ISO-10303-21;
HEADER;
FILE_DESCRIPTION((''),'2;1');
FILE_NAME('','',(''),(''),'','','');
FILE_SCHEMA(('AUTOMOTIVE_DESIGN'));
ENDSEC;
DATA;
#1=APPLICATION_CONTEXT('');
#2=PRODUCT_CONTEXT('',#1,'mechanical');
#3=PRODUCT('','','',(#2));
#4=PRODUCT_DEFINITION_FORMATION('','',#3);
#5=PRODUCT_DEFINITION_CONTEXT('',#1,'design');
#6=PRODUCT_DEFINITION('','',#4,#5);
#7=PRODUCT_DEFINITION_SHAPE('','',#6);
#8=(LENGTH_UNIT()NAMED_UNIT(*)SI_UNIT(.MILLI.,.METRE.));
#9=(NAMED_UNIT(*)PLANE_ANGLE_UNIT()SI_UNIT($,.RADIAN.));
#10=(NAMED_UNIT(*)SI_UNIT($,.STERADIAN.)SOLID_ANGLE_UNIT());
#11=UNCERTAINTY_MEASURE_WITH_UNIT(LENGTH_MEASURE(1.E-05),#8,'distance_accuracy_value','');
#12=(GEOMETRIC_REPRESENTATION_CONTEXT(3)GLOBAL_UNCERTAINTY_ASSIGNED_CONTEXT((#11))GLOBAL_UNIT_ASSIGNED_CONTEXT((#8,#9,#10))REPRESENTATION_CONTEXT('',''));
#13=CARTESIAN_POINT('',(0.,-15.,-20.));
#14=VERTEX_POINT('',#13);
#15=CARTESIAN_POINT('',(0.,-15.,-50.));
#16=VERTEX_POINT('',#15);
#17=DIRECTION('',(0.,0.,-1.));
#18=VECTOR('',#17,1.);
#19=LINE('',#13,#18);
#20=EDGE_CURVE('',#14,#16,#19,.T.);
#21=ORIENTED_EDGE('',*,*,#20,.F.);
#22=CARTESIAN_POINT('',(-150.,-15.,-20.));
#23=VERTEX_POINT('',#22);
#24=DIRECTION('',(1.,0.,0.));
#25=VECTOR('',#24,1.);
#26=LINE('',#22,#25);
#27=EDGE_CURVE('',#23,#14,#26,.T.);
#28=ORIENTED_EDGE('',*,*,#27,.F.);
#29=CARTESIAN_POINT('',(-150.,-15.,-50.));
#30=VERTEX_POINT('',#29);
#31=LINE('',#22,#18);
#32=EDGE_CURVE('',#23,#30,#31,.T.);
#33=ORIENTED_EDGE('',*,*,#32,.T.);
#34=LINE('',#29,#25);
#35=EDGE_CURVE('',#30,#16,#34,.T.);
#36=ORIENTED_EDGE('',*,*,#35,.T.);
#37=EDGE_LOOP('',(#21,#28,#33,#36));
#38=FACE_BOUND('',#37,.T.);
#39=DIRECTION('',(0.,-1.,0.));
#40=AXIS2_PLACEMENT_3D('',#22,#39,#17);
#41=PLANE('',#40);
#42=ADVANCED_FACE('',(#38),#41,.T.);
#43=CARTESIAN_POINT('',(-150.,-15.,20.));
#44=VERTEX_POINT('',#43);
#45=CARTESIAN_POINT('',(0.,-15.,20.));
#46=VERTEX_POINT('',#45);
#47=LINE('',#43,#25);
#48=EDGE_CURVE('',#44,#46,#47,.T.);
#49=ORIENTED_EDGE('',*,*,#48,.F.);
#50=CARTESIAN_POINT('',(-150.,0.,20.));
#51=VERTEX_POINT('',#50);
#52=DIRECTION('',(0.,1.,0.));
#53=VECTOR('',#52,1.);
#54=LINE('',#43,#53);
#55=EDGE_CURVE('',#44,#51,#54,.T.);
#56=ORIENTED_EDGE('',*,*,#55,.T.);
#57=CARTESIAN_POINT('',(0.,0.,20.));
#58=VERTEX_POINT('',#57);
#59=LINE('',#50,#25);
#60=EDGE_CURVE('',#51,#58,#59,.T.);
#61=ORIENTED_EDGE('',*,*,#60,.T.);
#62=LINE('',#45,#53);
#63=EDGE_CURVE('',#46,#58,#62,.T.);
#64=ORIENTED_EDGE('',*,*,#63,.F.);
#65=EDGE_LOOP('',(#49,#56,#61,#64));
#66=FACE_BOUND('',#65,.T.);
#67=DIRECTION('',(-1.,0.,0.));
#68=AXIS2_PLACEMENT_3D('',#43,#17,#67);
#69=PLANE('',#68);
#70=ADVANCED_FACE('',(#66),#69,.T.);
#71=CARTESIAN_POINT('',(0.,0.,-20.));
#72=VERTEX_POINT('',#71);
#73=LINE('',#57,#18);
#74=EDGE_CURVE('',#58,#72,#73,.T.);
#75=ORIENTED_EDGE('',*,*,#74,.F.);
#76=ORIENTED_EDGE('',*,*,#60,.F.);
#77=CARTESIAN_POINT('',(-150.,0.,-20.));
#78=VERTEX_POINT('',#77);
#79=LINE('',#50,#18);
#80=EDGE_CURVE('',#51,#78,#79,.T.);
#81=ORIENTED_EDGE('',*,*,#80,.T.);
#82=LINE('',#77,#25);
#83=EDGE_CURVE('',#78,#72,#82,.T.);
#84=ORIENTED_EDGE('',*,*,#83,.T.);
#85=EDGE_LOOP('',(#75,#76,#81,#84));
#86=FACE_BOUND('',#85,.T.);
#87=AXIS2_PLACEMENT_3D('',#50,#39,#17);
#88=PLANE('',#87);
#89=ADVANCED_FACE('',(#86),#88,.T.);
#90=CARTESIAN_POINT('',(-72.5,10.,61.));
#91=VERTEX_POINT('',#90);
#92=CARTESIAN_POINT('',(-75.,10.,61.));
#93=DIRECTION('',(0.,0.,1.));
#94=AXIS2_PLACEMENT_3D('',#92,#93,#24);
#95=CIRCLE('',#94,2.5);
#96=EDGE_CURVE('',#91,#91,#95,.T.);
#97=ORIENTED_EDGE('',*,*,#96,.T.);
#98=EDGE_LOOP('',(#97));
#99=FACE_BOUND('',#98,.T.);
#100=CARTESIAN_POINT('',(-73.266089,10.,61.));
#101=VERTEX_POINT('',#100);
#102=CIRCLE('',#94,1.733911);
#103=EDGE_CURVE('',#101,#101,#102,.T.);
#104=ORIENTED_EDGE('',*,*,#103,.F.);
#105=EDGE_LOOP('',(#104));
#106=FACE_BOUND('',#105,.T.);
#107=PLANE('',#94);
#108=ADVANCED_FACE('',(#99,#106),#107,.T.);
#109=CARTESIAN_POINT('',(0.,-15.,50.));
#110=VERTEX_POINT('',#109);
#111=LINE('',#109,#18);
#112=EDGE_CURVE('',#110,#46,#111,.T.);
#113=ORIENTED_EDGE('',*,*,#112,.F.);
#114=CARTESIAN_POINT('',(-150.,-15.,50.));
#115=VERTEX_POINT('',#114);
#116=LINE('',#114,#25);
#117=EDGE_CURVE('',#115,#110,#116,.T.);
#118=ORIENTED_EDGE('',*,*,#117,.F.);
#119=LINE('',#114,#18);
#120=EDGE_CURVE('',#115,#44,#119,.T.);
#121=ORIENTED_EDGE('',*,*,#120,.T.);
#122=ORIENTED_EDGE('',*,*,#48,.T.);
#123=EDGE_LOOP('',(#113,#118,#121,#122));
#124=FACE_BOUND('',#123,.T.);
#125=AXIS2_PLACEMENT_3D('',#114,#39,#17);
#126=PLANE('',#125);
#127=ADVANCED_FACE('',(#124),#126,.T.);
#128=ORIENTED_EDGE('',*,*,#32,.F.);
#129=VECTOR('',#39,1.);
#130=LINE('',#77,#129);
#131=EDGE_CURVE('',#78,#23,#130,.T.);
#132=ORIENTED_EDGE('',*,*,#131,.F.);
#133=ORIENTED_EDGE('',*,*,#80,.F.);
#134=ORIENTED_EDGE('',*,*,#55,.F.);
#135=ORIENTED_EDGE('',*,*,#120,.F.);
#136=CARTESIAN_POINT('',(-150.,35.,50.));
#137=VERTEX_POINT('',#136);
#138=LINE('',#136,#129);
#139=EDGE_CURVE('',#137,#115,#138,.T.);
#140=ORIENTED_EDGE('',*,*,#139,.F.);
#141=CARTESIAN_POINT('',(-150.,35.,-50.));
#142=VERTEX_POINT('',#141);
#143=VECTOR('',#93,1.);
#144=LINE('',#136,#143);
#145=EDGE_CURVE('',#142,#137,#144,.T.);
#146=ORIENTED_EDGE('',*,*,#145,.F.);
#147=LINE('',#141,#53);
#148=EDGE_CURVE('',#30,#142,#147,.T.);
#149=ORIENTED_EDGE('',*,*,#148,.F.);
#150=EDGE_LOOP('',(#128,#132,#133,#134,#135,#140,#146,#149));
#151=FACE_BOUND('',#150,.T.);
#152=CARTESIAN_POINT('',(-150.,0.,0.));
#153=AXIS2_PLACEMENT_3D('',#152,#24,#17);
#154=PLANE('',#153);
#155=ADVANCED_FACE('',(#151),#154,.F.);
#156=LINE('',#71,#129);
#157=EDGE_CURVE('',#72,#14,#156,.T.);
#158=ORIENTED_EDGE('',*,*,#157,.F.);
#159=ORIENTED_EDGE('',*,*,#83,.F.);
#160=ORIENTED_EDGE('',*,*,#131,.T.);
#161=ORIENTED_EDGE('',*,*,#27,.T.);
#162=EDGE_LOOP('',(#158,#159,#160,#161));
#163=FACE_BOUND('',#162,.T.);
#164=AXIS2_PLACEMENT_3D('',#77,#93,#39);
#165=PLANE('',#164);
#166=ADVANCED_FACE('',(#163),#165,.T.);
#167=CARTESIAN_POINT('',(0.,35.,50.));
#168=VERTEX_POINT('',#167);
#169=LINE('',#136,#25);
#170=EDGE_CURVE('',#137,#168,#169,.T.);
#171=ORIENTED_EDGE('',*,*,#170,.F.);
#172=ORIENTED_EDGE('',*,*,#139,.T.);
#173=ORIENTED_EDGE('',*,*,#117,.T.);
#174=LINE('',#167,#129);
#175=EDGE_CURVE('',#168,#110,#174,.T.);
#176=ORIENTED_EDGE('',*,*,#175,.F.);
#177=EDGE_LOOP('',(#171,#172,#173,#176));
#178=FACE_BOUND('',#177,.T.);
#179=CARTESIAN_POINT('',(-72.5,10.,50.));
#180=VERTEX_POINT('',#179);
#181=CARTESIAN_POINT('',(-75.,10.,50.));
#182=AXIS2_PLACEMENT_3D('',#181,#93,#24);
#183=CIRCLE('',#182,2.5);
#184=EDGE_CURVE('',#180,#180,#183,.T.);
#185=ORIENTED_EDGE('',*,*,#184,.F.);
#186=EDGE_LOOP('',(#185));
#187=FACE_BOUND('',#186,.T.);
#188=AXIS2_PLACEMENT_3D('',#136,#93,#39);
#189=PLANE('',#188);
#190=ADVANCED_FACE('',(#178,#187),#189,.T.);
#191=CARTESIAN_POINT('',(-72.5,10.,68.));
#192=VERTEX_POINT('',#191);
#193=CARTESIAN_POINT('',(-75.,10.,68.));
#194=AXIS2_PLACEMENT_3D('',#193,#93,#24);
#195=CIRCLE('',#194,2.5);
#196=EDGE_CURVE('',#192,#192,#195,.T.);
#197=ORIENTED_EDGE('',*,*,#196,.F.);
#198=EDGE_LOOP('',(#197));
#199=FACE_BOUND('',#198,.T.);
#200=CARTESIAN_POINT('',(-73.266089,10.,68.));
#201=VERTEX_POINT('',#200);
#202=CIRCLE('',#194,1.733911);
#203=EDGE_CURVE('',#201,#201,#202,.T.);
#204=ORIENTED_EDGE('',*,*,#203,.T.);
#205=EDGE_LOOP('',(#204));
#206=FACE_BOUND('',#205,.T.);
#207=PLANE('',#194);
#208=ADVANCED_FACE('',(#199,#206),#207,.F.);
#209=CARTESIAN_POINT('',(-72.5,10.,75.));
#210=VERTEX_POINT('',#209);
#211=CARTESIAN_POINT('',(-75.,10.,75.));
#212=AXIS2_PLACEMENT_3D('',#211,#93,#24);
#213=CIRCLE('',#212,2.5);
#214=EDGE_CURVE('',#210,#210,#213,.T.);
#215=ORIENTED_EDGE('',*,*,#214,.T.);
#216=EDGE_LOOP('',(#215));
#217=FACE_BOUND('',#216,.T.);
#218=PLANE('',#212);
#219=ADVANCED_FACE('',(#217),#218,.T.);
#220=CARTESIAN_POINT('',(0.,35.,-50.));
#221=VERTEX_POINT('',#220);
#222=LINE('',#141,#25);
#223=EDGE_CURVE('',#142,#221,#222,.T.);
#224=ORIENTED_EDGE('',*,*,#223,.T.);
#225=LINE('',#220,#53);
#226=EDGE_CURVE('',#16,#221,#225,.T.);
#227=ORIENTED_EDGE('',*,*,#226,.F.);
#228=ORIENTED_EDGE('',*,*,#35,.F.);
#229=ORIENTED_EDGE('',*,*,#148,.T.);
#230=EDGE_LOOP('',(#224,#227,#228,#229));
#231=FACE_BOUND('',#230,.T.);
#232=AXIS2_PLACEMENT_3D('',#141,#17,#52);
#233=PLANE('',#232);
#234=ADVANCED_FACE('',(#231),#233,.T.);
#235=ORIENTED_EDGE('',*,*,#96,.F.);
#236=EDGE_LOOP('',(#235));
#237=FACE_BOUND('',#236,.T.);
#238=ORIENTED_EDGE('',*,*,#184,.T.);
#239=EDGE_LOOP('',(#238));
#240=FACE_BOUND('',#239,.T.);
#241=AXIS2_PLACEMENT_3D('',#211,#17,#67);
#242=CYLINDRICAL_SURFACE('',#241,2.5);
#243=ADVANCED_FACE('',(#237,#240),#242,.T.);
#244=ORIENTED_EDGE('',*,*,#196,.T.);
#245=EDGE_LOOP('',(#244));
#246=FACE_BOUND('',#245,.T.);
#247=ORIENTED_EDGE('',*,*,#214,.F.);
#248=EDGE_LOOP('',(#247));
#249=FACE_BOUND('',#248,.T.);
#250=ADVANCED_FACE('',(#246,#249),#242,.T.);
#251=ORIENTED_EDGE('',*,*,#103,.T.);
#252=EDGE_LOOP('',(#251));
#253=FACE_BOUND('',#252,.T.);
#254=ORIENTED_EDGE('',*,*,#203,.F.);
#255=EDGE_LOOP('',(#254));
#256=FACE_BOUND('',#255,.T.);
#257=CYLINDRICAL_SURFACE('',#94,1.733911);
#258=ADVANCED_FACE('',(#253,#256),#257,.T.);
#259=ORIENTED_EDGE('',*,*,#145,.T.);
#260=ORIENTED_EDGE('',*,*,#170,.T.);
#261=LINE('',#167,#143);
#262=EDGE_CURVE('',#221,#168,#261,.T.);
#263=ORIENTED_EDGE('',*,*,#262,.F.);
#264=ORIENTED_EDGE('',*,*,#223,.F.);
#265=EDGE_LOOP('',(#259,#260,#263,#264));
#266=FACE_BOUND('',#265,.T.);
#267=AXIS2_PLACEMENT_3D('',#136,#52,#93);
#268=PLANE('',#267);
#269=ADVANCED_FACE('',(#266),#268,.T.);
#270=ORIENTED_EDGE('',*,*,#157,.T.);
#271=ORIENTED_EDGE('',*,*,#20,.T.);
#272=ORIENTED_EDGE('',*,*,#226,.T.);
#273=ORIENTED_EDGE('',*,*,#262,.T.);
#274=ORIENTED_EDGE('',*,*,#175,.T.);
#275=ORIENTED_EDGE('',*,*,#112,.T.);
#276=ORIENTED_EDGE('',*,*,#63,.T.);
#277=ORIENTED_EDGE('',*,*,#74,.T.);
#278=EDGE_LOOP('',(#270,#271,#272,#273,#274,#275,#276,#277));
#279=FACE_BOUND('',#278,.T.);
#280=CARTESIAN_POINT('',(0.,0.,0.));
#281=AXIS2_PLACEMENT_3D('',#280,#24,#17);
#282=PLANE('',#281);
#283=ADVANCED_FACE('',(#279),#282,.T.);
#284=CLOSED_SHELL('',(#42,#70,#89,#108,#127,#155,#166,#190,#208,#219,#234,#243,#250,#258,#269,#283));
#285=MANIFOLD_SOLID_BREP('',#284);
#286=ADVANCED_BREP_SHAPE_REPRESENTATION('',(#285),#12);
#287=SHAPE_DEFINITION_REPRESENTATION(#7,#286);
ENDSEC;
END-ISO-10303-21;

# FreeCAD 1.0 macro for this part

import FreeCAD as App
import Part
import Sketcher
from FreeCAD import Vector
Q = App.Units.Quantity

doc = App.newDocument("Part")
body = doc.addObject("PartDesign::Body", "Body")

# Sketch on YZ plane
sketch1 = body.newObject("Sketcher::SketchObject", "Sketch")
sketch1.AttachmentSupport = (doc.getObject("YZ_Plane"), [""])
sketch1.MapMode = "FlatFace"
sketch1.addGeometry([
    Part.LineSegment(Vector(35, -50, 0), Vector(35, 50, 0)),  # 0
    Part.LineSegment(Vector(35, 50, 0), Vector(-15, 50, 0)),  # 1
    Part.LineSegment(Vector(-15, 50, 0), Vector(-15, 20, 0)),  # 2
    Part.LineSegment(Vector(-15, 20, 0), Vector(0, 20, 0)),  # 3
    Part.LineSegment(Vector(0, 20, 0), Vector(0, -20, 0)),  # 4
    Part.LineSegment(Vector(0, -20, 0), Vector(-15, -20, 0)),  # 5
    Part.LineSegment(Vector(-15, -20, 0), Vector(-15, -50, 0)),  # 6
    Part.LineSegment(Vector(-15, -50, 0), Vector(35, -50, 0)),  # 7
], False)
sketch1.addConstraint([
    Sketcher.Constraint("Coincident", 0, 2, 1, 1),
    Sketcher.Constraint("Coincident", 1, 2, 2, 1),
    Sketcher.Constraint("Coincident", 2, 2, 3, 1),
    Sketcher.Constraint("Coincident", 3, 2, 4, 1),
    Sketcher.Constraint("Coincident", 4, 2, 5, 1),
    Sketcher.Constraint("Coincident", 5, 2, 6, 1),
    Sketcher.Constraint("Coincident", 6, 2, 7, 1),
    Sketcher.Constraint("Coincident", 7, 2, 0, 1),
    Sketcher.Constraint("Vertical", 0),
    Sketcher.Constraint("Horizontal", 1),
    Sketcher.Constraint("Vertical", 2),
    Sketcher.Constraint("Horizontal", 3),
    Sketcher.Constraint("Vertical", 4),
    Sketcher.Constraint("Horizontal", 5),
    Sketcher.Constraint("Vertical", 6),
    Sketcher.Constraint("Horizontal", 7),
    Sketcher.Constraint("Symmetric", 3, 2, 4, 2, -1, 1),
    Sketcher.Constraint("Symmetric", 1, 2, 6, 2, -1),
    Sketcher.Constraint("DistanceX", 1, 2, 1, 1, Q("50 mm")),
    Sketcher.Constraint("DistanceX", 3, 1, 3, 2, Q("15 mm")),
    Sketcher.Constraint("DistanceY", 0, 1, 0, 2, Q("100 mm")),
    Sketcher.Constraint("DistanceY", 2, 2, 2, 1, Q("30 mm")),
])
pad1 = body.newObject("PartDesign::Pad", "Pad")
pad1.Profile = sketch1
pad1.Length = 150
pad1.Reversed = True

# Sketch on XY plane
sketch2 = body.newObject("Sketcher::SketchObject", "Sketch001")
sketch2.AttachmentSupport = (doc.getObject("XY_Plane"), [""])
sketch2.MapMode = "FlatFace"
sketch2.AttachmentOffset = App.Placement(Vector(0, 0, 50), App.Rotation())
sketch2.addGeometry(Part.Circle(Vector(-75, 10, 0), Vector(0, 0, 1), 2.5), False)
sketch2.addConstraint([
    Sketcher.Constraint("Diameter", 0, Q("5 mm")),
    Sketcher.Constraint("DistanceX", 0, 3, -1, 1, Q("75 mm")),
    Sketcher.Constraint("DistanceY", -1, 1, 0, 3, Q("10 mm")),
])
pad2 = body.newObject("PartDesign::Pad", "Pad001")
pad2.Profile = sketch2
pad2.Length = 25

# Sketch on XY plane
sketch3 = body.newObject("Sketcher::SketchObject", "Sketch002")
sketch3.AttachmentSupport = (doc.getObject("XY_Plane"), [""])
sketch3.MapMode = "FlatFace"
sketch3.AttachmentOffset = App.Placement(Vector(0, 0, 68), App.Rotation())
sketch3.addGeometry([
    Part.Circle(Vector(-75, 10, 0), Vector(0, 0, 1), 2.5),
    Part.Circle(Vector(-75, 10, 0), Vector(0, 0, 1), 1.733911),
], False)
sketch3.addConstraint([
    Sketcher.Constraint("Coincident", 1, 3, 0, 3),
    Sketcher.Constraint("Diameter", 0, Q("5 mm")),
    Sketcher.Constraint("DistanceX", 0, 3, -1, 1, Q("75 mm")),
    Sketcher.Constraint("DistanceY", -1, 1, 0, 3, Q("10 mm")),
    Sketcher.Constraint("Diameter", 1, Q("3.467821 mm")),
])
pocket1 = body.newObject("PartDesign::Pocket", "Pocket")
pocket1.Profile = sketch3
pocket1.Length = 7

doc.recompute()
